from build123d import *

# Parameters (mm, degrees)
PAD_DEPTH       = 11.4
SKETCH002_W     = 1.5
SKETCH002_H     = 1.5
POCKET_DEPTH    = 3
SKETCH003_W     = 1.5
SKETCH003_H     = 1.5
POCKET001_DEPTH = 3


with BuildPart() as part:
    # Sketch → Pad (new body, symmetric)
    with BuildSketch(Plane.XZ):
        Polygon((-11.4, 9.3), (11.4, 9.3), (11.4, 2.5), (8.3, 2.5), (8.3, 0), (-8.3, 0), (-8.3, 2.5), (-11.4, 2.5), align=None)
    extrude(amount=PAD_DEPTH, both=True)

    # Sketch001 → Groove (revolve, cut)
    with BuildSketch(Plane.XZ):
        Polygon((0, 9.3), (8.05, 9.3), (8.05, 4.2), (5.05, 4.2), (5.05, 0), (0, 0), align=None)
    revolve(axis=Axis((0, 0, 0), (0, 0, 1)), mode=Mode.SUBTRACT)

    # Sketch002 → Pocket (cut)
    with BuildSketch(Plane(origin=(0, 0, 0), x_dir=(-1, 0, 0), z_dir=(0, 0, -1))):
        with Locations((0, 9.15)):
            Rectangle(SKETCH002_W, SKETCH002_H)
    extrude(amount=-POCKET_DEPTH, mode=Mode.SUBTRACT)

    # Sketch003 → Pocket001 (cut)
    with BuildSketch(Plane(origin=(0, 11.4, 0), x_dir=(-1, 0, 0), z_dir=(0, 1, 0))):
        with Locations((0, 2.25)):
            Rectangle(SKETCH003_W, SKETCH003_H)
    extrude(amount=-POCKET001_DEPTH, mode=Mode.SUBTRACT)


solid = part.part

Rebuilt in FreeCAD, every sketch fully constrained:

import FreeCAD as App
import Part
import Sketcher

V = App.Vector

doc = App.newDocument("Part")
body = doc.addObject("PartDesign::Body", "Body")

# Sketch on XZ plane
sketch1 = body.newObject("Sketcher::SketchObject", "Sketch")
sketch1.AttachmentSupport = (doc.getObject("XZ_Plane"), [""])
sketch1.MapMode = "FlatFace"
sketch1.addGeometry([
    Part.LineSegment(V(11.4, 9.3, 0), V(-11.4, 9.3, 0)),  # 0
    Part.LineSegment(V(-11.4, 9.3, 0), V(-11.4, 2.5, 0)),  # 1
    Part.LineSegment(V(-11.4, 2.5, 0), V(-8.3, 2.5, 0)),  # 2
    Part.LineSegment(V(-8.3, 2.5, 0), V(-8.3, 0, 0)),  # 3
    Part.LineSegment(V(-8.3, 0, 0), V(8.3, 0, 0)),  # 4
    Part.LineSegment(V(8.3, 0, 0), V(8.3, 2.5, 0)),  # 5
    Part.LineSegment(V(8.3, 2.5, 0), V(11.4, 2.5, 0)),  # 6
    Part.LineSegment(V(11.4, 2.5, 0), V(11.4, 9.3, 0)),  # 7
], False)
sketch1.addConstraint([
    Sketcher.Constraint("Coincident", 0, 2, 1, 1),
    Sketcher.Constraint("Coincident", 1, 2, 2, 1),
    Sketcher.Constraint("Coincident", 2, 2, 3, 1),
    Sketcher.Constraint("Coincident", 3, 2, 4, 1),
    Sketcher.Constraint("Coincident", 4, 2, 5, 1),
    Sketcher.Constraint("Coincident", 5, 2, 6, 1),
    Sketcher.Constraint("Coincident", 6, 2, 7, 1),
    Sketcher.Constraint("Coincident", 7, 2, 0, 1),
    Sketcher.Constraint("Horizontal", 0),
    Sketcher.Constraint("Vertical", 1),
    Sketcher.Constraint("Horizontal", 2),
    Sketcher.Constraint("Vertical", 3),
    Sketcher.Constraint("Horizontal", 4),
    Sketcher.Constraint("Vertical", 5),
    Sketcher.Constraint("Horizontal", 6),
    Sketcher.Constraint("Vertical", 7),
    Sketcher.Constraint("Symmetric", 3, 2, 4, 2, -1, 1),
    Sketcher.Constraint("Symmetric", 1, 2, 6, 2, -2),
    Sketcher.Constraint("DistanceX", 0, 2, 0, 1, 22.8),
    Sketcher.Constraint("DistanceX", 2, 1, 2, 2, 3.1),
    Sketcher.Constraint("DistanceY", 1, 2, 1, 1, 6.8),
    Sketcher.Constraint("DistanceY", 3, 2, 3, 1, 2.5),
])
pad1 = body.newObject("PartDesign::Pad", "Pad")
pad1.Profile = sketch1
pad1.Length = 22.8
pad1.Midplane = True

# Sketch on XZ plane
sketch2 = body.newObject("Sketcher::SketchObject", "Sketch001")
sketch2.AttachmentSupport = (doc.getObject("XZ_Plane"), [""])
sketch2.MapMode = "FlatFace"
sketch2.addGeometry([
    Part.LineSegment(V(8.1, 9.3, 0), V(0, 9.3, 0)),  # 0
    Part.LineSegment(V(0, 9.3, 0), V(0, 0, 0)),  # 1
    Part.LineSegment(V(0, 0, 0), V(5, 0, 0)),  # 2
    Part.LineSegment(V(5, 0, 0), V(5, 4.2, 0)),  # 3
    Part.LineSegment(V(5, 4.2, 0), V(8.1, 4.2, 0)),  # 4
    Part.LineSegment(V(8.1, 4.2, 0), V(8.1, 9.3, 0)),  # 5
], False)
sketch2.addConstraint([
    Sketcher.Constraint("Coincident", 0, 2, 1, 1),
    Sketcher.Constraint("Coincident", 1, 2, 2, 1),
    Sketcher.Constraint("Coincident", 2, 2, 3, 1),
    Sketcher.Constraint("Coincident", 3, 2, 4, 1),
    Sketcher.Constraint("Coincident", 4, 2, 5, 1),
    Sketcher.Constraint("Coincident", 5, 2, 0, 1),
    Sketcher.Constraint("Horizontal", 0),
    Sketcher.Constraint("Vertical", 1),
    Sketcher.Constraint("Horizontal", 2),
    Sketcher.Constraint("Vertical", 3),
    Sketcher.Constraint("Horizontal", 4),
    Sketcher.Constraint("Vertical", 5),
    Sketcher.Constraint("Coincident", 1, 2, -1, 1),
    Sketcher.Constraint("DistanceX", 4, 1, 4, 2, 3.0),
    Sketcher.Constraint("DistanceY", 1, 2, 1, 1, 9.3),
    Sketcher.Constraint("DistanceY", 3, 1, 3, 2, 4.2),
    Sketcher.Constraint("DistanceX", 0, 2, 0, 1, 8.05),
])
groove = body.newObject("PartDesign::Groove", "Groove")
groove.Profile = sketch2
groove.ReferenceAxis = (sketch2, ["V_Axis"])
groove.Angle = 360

# Sketch on XY plane
sketch3 = body.newObject("Sketcher::SketchObject", "Sketch002")
sketch3.AttachmentSupport = (doc.getObject("XY_Plane"), [""])
sketch3.MapMode = "FlatFace"
sketch3.addGeometry([
    Part.LineSegment(V(0.8, 9.9, 0), V(0.8, 8.4, 0)),
    Part.LineSegment(V(0.8, 8.4, 0), V(-0.8, 8.4, 0)),
    Part.LineSegment(V(-0.8, 8.4, 0), V(-0.8, 9.9, 0)),
    Part.LineSegment(V(-0.8, 9.9, 0), V(0.8, 9.9, 0)),
], False)
sketch3.addConstraint([
    Sketcher.Constraint("Coincident", 0, 2, 1, 1),
    Sketcher.Constraint("Coincident", 1, 2, 2, 1),
    Sketcher.Constraint("Coincident", 2, 2, 3, 1),
    Sketcher.Constraint("Coincident", 3, 2, 0, 1),
    Sketcher.Constraint("Vertical", 0),
    Sketcher.Constraint("Horizontal", 1),
    Sketcher.Constraint("Vertical", 2),
    Sketcher.Constraint("Horizontal", 3),
    Sketcher.Constraint("Equal", 3, 0),
    Sketcher.Constraint("DistanceX", 1, 2, 1, 1, 1.5),
    Sketcher.Constraint("DistanceY", -1, 1, 0, 2, 8.4),
    Sketcher.Constraint("DistanceX", -1, 1, 0, 2, 0.75),
])
pocket1 = body.newObject("PartDesign::Pocket", "Pocket")
pocket1.Profile = sketch3
pocket1.Length = 3
pocket1.Reversed = True

# Sketch on XZ plane
sketch4 = body.newObject("Sketcher::SketchObject", "Sketch003")
sketch4.AttachmentSupport = (doc.getObject("XZ_Plane"), [""])
sketch4.MapMode = "FlatFace"
sketch4.AttachmentOffset = App.Placement(V(0, 0, -11.4), App.Rotation())
sketch4.addGeometry([
    Part.LineSegment(V(0.8, 3, 0), V(0.8, 1.5, 0)),
    Part.LineSegment(V(0.8, 1.5, 0), V(-0.8, 1.5, 0)),
    Part.LineSegment(V(-0.8, 1.5, 0), V(-0.8, 3, 0)),
    Part.LineSegment(V(-0.8, 3, 0), V(0.8, 3, 0)),
], False)
sketch4.addConstraint([
    Sketcher.Constraint("Coincident", 0, 2, 1, 1),
    Sketcher.Constraint("Coincident", 1, 2, 2, 1),
    Sketcher.Constraint("Coincident", 2, 2, 3, 1),
    Sketcher.Constraint("Coincident", 3, 2, 0, 1),
    Sketcher.Constraint("Vertical", 0),
    Sketcher.Constraint("Horizontal", 1),
    Sketcher.Constraint("Vertical", 2),
    Sketcher.Constraint("Horizontal", 3),
    Sketcher.Constraint("Equal", 3, 0),
    Sketcher.Constraint("DistanceX", 1, 2, 1, 1, 1.5),
    Sketcher.Constraint("DistanceY", -1, 1, 2, 2, 3.0),
    Sketcher.Constraint("DistanceX", -1, 1, 0, 2, 0.75),
])
pocket2 = body.newObject("PartDesign::Pocket", "Pocket001")
pocket2.Profile = sketch4
pocket2.Length = 3
pocket2.Reversed = True

doc.recompute()
